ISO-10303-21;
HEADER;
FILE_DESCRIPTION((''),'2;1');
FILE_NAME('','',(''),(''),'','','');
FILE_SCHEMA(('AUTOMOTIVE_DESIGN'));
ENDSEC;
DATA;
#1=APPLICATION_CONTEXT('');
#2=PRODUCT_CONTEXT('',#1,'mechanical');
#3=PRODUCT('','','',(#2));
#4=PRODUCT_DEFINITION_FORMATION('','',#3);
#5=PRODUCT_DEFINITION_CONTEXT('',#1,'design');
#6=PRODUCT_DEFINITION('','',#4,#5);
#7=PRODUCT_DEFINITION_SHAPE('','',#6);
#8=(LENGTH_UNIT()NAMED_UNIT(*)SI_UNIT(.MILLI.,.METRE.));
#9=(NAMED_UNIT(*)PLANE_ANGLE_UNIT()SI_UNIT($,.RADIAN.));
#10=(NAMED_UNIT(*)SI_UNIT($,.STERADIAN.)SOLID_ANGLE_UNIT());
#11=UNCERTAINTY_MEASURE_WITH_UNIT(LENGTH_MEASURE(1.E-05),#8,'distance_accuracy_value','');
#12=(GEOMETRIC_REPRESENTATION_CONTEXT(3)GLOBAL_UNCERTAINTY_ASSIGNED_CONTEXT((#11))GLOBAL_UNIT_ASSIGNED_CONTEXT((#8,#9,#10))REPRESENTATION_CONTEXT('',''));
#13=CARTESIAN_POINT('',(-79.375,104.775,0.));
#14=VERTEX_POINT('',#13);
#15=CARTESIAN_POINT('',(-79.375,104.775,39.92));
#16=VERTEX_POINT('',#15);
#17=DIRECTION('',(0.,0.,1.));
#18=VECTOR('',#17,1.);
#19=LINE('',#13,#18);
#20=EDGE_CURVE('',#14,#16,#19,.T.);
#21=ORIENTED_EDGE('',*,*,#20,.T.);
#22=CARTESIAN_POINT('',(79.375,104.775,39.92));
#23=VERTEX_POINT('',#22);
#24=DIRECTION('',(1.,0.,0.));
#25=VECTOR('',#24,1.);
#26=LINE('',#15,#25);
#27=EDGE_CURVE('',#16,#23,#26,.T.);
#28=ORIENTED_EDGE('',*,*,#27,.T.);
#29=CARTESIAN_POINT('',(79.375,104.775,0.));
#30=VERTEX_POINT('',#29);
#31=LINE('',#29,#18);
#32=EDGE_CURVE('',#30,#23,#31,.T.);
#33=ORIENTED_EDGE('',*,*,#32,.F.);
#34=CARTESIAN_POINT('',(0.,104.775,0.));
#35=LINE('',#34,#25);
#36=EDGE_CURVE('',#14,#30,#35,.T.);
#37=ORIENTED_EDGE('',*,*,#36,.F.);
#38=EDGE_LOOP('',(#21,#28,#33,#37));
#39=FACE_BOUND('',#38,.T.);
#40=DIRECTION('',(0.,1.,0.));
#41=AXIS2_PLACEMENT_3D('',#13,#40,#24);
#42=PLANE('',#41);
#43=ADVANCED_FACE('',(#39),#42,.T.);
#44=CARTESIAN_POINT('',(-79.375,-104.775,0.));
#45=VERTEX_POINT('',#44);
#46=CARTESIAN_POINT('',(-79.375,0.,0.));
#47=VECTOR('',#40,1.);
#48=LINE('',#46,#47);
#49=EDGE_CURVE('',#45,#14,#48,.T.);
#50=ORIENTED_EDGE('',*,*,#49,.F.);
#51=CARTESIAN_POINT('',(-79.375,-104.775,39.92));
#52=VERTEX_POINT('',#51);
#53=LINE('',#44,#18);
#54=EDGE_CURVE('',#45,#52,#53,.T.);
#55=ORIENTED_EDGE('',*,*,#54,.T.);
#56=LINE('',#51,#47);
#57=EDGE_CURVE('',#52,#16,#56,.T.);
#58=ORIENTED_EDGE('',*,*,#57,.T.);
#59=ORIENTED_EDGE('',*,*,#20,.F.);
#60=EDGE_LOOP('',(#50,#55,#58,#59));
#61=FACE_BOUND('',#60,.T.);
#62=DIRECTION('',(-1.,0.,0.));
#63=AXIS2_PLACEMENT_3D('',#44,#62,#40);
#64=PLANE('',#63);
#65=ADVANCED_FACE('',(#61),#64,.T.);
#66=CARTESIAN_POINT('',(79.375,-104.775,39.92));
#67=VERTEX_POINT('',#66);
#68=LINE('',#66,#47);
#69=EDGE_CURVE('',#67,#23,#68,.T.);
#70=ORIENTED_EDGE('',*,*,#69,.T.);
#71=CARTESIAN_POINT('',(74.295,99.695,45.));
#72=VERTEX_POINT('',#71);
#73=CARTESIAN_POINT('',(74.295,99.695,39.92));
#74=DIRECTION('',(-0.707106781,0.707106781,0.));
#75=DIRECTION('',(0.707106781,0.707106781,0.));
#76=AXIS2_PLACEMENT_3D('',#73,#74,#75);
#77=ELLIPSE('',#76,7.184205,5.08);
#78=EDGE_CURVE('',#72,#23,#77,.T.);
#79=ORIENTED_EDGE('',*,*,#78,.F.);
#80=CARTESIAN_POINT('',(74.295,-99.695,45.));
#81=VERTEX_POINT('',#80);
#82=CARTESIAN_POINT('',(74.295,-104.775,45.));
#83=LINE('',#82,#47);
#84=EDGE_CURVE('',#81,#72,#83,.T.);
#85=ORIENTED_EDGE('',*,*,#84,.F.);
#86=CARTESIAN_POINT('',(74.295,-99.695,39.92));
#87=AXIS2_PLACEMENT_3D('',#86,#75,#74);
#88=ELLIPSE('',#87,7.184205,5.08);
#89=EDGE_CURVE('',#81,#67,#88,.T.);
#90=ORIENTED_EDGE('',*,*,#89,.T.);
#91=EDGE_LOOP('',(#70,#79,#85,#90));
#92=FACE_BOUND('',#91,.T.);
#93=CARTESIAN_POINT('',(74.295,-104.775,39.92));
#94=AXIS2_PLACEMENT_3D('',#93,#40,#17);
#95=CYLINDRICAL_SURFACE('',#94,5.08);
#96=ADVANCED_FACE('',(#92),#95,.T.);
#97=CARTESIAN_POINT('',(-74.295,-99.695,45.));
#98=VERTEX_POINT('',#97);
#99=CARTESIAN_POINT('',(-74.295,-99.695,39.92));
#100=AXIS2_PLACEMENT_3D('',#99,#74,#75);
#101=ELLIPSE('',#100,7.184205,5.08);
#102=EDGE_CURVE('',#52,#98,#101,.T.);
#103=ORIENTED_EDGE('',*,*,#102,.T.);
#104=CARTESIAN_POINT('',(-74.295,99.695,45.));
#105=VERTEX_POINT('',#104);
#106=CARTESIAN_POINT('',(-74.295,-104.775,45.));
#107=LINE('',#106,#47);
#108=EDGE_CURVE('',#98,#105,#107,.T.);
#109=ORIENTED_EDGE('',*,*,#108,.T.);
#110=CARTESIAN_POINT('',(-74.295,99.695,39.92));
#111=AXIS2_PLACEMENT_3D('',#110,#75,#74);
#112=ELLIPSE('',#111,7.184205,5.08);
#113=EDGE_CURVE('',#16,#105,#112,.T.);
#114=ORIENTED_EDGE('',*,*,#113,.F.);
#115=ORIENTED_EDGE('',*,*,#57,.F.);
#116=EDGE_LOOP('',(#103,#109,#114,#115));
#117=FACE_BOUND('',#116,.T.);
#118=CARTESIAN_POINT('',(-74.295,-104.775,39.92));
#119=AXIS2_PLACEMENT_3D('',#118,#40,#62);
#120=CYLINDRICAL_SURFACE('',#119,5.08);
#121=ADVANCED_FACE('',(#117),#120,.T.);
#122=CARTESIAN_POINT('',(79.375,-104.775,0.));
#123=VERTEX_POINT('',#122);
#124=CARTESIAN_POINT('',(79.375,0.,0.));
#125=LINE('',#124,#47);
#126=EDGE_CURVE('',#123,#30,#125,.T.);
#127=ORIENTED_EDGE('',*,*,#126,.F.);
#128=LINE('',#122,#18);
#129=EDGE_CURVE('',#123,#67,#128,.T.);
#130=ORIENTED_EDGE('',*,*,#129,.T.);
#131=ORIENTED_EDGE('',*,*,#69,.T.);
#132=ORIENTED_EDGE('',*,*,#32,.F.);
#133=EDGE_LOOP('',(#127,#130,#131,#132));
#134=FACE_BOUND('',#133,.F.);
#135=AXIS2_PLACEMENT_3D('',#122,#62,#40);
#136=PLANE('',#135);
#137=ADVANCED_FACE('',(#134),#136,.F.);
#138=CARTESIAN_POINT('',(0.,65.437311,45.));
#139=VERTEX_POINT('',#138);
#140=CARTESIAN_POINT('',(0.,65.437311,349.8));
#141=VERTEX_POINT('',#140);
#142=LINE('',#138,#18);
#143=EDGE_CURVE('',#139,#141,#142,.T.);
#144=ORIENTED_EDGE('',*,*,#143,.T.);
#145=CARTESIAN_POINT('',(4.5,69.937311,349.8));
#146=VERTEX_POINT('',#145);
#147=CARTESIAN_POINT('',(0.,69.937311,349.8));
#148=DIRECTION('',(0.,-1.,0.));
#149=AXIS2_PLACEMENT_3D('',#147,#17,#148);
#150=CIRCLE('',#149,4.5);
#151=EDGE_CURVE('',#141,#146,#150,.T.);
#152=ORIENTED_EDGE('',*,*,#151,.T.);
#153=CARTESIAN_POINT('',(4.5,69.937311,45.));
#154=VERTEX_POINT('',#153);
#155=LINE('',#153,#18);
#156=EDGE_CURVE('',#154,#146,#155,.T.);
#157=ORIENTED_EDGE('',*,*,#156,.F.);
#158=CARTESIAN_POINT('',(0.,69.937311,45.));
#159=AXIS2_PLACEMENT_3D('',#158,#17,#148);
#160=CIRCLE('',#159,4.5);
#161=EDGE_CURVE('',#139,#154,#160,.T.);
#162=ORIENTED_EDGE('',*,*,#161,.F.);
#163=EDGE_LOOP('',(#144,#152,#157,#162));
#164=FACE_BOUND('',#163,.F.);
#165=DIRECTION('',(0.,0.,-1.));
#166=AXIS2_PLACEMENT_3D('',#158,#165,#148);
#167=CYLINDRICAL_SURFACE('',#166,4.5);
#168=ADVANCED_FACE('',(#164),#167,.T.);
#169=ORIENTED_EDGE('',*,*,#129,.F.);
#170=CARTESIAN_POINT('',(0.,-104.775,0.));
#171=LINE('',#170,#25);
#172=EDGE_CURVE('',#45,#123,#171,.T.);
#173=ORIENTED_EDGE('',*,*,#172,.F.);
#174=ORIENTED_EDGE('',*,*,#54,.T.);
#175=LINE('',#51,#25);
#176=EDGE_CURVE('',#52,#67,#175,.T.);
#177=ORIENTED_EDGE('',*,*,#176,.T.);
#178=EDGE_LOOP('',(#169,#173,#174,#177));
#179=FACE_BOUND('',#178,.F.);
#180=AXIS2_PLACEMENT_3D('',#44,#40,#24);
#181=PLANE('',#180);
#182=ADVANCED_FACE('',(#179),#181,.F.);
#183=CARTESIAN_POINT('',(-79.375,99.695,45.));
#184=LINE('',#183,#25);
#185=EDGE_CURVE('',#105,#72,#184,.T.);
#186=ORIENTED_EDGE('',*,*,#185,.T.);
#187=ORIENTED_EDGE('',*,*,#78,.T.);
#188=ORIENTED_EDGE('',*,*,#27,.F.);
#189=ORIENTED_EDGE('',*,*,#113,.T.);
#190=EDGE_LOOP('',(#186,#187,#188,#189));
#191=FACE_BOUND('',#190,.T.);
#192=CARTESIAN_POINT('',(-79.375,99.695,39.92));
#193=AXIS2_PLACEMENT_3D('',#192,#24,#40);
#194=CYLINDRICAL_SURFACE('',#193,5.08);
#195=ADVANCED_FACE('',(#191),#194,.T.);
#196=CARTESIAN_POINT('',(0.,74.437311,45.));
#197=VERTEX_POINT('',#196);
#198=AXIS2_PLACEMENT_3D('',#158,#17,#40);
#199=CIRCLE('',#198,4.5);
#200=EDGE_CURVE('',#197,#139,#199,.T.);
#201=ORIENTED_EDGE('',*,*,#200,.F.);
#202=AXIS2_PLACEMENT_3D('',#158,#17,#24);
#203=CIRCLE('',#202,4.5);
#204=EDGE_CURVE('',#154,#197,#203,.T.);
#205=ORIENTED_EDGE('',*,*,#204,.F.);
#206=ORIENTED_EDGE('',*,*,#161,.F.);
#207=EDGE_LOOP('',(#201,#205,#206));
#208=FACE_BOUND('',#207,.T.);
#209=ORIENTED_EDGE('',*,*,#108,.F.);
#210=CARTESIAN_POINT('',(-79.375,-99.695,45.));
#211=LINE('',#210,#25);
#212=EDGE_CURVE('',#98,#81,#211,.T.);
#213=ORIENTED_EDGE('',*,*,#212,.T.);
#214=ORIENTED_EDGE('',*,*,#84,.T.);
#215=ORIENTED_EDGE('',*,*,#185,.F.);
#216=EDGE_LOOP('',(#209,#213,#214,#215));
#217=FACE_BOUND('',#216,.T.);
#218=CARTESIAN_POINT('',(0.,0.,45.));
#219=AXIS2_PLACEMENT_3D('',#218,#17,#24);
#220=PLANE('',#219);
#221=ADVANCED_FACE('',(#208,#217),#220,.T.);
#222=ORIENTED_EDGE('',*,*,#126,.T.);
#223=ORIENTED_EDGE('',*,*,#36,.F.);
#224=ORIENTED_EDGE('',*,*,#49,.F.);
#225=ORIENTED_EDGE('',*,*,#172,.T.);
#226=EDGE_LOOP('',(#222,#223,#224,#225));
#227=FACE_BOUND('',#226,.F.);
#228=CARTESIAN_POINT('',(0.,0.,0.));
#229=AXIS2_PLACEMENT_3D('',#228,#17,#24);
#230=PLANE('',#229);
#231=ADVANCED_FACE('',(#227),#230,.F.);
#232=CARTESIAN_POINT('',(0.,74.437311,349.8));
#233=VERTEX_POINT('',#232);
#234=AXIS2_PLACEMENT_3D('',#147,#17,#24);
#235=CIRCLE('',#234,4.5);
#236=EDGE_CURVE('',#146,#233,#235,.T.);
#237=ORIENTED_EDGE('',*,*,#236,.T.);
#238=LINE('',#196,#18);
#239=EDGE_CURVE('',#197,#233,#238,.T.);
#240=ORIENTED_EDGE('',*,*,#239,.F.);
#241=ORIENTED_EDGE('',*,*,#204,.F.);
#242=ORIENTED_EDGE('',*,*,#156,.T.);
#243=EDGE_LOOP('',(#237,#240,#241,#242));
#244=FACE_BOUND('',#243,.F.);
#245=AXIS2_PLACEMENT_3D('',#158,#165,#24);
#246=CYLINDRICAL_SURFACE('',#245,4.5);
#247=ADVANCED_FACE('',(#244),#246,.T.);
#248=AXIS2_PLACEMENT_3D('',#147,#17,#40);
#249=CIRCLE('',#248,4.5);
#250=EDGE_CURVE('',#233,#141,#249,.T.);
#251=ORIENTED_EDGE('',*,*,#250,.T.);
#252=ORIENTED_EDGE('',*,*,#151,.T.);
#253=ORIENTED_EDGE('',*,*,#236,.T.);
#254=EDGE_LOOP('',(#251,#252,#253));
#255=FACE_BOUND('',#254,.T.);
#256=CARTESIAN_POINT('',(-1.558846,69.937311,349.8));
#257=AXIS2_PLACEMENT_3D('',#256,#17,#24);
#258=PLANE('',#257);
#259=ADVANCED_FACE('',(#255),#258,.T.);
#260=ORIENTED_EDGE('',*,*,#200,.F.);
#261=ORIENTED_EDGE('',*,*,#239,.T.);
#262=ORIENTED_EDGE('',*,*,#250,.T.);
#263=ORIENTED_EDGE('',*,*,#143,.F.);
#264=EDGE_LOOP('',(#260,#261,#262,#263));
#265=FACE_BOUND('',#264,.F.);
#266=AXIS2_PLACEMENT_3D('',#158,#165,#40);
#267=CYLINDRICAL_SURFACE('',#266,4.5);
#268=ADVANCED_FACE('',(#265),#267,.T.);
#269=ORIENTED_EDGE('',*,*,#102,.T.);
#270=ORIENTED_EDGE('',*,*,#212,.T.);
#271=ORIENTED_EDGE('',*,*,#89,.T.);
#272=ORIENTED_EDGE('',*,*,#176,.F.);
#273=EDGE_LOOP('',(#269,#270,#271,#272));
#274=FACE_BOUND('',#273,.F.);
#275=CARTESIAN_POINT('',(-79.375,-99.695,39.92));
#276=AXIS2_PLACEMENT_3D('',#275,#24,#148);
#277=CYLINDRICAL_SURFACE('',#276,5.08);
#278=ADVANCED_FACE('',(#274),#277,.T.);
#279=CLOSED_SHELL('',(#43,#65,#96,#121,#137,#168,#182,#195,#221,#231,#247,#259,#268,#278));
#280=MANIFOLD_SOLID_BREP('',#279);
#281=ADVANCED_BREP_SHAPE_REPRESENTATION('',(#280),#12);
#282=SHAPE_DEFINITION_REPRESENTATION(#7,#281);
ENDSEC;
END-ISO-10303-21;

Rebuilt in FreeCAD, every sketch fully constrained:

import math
import FreeCAD as App
import Part
import Sketcher
from FreeCAD import Vector
Q = App.Units.Quantity


def edges_at(feature, points):
    """Names of the edges that pass closest to the given points."""
    edges = feature.Shape.Edges
    near = lambda p: min(range(len(edges)), key=lambda i: edges[i].distToShape(Part.Vertex(*p))[0])
    return sorted({f"Edge{near(p) + 1}" for p in points})

doc = App.newDocument("Part")
body = doc.addObject("PartDesign::Body", "Body")

# Sketch on XY plane
sketch1 = body.newObject("Sketcher::SketchObject", "Sketch")
sketch1.AttachmentSupport = (doc.getObject("XY_Plane"), [""])
sketch1.MapMode = "FlatFace"
sketch1.addGeometry([
    Part.LineSegment(Vector(-79, 105, 0), Vector(-79, -105, 0)),
    Part.LineSegment(Vector(-79, -105, 0), Vector(79, -105, 0)),
    Part.LineSegment(Vector(79, -105, 0), Vector(79, 105, 0)),
    Part.LineSegment(Vector(79, 105, 0), Vector(-79, 105, 0)),
], False)
sketch1.addConstraint([
    Sketcher.Constraint("Coincident", 0, 2, 1, 1),
    Sketcher.Constraint("Coincident", 1, 2, 2, 1),
    Sketcher.Constraint("Coincident", 2, 2, 3, 1),
    Sketcher.Constraint("Coincident", 3, 2, 0, 1),
    Sketcher.Constraint("Vertical", 0),
    Sketcher.Constraint("Horizontal", 1),
    Sketcher.Constraint("Vertical", 2),
    Sketcher.Constraint("Horizontal", 3),
    Sketcher.Constraint("Symmetric", 0, 2, 2, 2, -1, 1),
    Sketcher.Constraint("DistanceX", 1, 1, 1, 2, Q("6.25 in")),
    Sketcher.Constraint("DistanceY", 0, 2, 0, 1, Q("8.25 in")),
])
pad1 = body.newObject("PartDesign::Pad", "Pad")
pad1.Profile = sketch1
pad1.Length = 45

# Sketch on XY plane
sketch2 = body.newObject("Sketcher::SketchObject", "Sketch001")
sketch2.AttachmentSupport = (doc.getObject("XY_Plane"), [""])
sketch2.MapMode = "FlatFace"
sketch2.AttachmentOffset = App.Placement(Vector(0, 0, 45), App.Rotation())
sketch2.addGeometry([
    Part.ArcOfCircle(Part.Circle(Vector(0, 69.9, 0), Vector(0, 0, 1), 4.5), math.radians(90), math.radians(270)),
    Part.ArcOfCircle(Part.Circle(Vector(0, 69.9, 0), Vector(0, 0, 1), 4.5), math.radians(-90), math.radians(0)),
    Part.ArcOfCircle(Part.Circle(Vector(0, 69.9, 0), Vector(0, 0, 1), 4.5), math.radians(0), math.radians(90)),
], False)
sketch2.addConstraint([
    Sketcher.Constraint("Tangent", 0, 2, 1, 1),
    Sketcher.Constraint("Tangent", 1, 2, 2, 1),
    Sketcher.Constraint("Tangent", 2, 2, 0, 1),
    Sketcher.Constraint("PointOnObject", 0, 3, -2),
    Sketcher.Constraint("PointOnObject", 0, 2, -2),
    Sketcher.Constraint("PointOnObject", 2, 2, -2),
    Sketcher.Constraint("Horizontal", 2, 3, 1, 2),
    Sketcher.Constraint("Radius", 0, Q("4.5 mm")),
    Sketcher.Constraint("DistanceY", -1, 1, 0, 3, Q("69.937311 mm")),
])
pad2 = body.newObject("PartDesign::Pad", "Pad001")
pad2.Profile = sketch2
pad2.Length = Q("12 in")
doc.recompute()

fillet = body.newObject("PartDesign::Fillet", "Fillet")
fillet.Base = (pad2, edges_at(pad2, [
    (79.375, 0, 45),
    (0, -104.775, 45),
    (-79.375, 0, 45),
    (0, 104.775, 45),
]))
fillet.Radius = Q("0.2 in")

doc.recompute()
